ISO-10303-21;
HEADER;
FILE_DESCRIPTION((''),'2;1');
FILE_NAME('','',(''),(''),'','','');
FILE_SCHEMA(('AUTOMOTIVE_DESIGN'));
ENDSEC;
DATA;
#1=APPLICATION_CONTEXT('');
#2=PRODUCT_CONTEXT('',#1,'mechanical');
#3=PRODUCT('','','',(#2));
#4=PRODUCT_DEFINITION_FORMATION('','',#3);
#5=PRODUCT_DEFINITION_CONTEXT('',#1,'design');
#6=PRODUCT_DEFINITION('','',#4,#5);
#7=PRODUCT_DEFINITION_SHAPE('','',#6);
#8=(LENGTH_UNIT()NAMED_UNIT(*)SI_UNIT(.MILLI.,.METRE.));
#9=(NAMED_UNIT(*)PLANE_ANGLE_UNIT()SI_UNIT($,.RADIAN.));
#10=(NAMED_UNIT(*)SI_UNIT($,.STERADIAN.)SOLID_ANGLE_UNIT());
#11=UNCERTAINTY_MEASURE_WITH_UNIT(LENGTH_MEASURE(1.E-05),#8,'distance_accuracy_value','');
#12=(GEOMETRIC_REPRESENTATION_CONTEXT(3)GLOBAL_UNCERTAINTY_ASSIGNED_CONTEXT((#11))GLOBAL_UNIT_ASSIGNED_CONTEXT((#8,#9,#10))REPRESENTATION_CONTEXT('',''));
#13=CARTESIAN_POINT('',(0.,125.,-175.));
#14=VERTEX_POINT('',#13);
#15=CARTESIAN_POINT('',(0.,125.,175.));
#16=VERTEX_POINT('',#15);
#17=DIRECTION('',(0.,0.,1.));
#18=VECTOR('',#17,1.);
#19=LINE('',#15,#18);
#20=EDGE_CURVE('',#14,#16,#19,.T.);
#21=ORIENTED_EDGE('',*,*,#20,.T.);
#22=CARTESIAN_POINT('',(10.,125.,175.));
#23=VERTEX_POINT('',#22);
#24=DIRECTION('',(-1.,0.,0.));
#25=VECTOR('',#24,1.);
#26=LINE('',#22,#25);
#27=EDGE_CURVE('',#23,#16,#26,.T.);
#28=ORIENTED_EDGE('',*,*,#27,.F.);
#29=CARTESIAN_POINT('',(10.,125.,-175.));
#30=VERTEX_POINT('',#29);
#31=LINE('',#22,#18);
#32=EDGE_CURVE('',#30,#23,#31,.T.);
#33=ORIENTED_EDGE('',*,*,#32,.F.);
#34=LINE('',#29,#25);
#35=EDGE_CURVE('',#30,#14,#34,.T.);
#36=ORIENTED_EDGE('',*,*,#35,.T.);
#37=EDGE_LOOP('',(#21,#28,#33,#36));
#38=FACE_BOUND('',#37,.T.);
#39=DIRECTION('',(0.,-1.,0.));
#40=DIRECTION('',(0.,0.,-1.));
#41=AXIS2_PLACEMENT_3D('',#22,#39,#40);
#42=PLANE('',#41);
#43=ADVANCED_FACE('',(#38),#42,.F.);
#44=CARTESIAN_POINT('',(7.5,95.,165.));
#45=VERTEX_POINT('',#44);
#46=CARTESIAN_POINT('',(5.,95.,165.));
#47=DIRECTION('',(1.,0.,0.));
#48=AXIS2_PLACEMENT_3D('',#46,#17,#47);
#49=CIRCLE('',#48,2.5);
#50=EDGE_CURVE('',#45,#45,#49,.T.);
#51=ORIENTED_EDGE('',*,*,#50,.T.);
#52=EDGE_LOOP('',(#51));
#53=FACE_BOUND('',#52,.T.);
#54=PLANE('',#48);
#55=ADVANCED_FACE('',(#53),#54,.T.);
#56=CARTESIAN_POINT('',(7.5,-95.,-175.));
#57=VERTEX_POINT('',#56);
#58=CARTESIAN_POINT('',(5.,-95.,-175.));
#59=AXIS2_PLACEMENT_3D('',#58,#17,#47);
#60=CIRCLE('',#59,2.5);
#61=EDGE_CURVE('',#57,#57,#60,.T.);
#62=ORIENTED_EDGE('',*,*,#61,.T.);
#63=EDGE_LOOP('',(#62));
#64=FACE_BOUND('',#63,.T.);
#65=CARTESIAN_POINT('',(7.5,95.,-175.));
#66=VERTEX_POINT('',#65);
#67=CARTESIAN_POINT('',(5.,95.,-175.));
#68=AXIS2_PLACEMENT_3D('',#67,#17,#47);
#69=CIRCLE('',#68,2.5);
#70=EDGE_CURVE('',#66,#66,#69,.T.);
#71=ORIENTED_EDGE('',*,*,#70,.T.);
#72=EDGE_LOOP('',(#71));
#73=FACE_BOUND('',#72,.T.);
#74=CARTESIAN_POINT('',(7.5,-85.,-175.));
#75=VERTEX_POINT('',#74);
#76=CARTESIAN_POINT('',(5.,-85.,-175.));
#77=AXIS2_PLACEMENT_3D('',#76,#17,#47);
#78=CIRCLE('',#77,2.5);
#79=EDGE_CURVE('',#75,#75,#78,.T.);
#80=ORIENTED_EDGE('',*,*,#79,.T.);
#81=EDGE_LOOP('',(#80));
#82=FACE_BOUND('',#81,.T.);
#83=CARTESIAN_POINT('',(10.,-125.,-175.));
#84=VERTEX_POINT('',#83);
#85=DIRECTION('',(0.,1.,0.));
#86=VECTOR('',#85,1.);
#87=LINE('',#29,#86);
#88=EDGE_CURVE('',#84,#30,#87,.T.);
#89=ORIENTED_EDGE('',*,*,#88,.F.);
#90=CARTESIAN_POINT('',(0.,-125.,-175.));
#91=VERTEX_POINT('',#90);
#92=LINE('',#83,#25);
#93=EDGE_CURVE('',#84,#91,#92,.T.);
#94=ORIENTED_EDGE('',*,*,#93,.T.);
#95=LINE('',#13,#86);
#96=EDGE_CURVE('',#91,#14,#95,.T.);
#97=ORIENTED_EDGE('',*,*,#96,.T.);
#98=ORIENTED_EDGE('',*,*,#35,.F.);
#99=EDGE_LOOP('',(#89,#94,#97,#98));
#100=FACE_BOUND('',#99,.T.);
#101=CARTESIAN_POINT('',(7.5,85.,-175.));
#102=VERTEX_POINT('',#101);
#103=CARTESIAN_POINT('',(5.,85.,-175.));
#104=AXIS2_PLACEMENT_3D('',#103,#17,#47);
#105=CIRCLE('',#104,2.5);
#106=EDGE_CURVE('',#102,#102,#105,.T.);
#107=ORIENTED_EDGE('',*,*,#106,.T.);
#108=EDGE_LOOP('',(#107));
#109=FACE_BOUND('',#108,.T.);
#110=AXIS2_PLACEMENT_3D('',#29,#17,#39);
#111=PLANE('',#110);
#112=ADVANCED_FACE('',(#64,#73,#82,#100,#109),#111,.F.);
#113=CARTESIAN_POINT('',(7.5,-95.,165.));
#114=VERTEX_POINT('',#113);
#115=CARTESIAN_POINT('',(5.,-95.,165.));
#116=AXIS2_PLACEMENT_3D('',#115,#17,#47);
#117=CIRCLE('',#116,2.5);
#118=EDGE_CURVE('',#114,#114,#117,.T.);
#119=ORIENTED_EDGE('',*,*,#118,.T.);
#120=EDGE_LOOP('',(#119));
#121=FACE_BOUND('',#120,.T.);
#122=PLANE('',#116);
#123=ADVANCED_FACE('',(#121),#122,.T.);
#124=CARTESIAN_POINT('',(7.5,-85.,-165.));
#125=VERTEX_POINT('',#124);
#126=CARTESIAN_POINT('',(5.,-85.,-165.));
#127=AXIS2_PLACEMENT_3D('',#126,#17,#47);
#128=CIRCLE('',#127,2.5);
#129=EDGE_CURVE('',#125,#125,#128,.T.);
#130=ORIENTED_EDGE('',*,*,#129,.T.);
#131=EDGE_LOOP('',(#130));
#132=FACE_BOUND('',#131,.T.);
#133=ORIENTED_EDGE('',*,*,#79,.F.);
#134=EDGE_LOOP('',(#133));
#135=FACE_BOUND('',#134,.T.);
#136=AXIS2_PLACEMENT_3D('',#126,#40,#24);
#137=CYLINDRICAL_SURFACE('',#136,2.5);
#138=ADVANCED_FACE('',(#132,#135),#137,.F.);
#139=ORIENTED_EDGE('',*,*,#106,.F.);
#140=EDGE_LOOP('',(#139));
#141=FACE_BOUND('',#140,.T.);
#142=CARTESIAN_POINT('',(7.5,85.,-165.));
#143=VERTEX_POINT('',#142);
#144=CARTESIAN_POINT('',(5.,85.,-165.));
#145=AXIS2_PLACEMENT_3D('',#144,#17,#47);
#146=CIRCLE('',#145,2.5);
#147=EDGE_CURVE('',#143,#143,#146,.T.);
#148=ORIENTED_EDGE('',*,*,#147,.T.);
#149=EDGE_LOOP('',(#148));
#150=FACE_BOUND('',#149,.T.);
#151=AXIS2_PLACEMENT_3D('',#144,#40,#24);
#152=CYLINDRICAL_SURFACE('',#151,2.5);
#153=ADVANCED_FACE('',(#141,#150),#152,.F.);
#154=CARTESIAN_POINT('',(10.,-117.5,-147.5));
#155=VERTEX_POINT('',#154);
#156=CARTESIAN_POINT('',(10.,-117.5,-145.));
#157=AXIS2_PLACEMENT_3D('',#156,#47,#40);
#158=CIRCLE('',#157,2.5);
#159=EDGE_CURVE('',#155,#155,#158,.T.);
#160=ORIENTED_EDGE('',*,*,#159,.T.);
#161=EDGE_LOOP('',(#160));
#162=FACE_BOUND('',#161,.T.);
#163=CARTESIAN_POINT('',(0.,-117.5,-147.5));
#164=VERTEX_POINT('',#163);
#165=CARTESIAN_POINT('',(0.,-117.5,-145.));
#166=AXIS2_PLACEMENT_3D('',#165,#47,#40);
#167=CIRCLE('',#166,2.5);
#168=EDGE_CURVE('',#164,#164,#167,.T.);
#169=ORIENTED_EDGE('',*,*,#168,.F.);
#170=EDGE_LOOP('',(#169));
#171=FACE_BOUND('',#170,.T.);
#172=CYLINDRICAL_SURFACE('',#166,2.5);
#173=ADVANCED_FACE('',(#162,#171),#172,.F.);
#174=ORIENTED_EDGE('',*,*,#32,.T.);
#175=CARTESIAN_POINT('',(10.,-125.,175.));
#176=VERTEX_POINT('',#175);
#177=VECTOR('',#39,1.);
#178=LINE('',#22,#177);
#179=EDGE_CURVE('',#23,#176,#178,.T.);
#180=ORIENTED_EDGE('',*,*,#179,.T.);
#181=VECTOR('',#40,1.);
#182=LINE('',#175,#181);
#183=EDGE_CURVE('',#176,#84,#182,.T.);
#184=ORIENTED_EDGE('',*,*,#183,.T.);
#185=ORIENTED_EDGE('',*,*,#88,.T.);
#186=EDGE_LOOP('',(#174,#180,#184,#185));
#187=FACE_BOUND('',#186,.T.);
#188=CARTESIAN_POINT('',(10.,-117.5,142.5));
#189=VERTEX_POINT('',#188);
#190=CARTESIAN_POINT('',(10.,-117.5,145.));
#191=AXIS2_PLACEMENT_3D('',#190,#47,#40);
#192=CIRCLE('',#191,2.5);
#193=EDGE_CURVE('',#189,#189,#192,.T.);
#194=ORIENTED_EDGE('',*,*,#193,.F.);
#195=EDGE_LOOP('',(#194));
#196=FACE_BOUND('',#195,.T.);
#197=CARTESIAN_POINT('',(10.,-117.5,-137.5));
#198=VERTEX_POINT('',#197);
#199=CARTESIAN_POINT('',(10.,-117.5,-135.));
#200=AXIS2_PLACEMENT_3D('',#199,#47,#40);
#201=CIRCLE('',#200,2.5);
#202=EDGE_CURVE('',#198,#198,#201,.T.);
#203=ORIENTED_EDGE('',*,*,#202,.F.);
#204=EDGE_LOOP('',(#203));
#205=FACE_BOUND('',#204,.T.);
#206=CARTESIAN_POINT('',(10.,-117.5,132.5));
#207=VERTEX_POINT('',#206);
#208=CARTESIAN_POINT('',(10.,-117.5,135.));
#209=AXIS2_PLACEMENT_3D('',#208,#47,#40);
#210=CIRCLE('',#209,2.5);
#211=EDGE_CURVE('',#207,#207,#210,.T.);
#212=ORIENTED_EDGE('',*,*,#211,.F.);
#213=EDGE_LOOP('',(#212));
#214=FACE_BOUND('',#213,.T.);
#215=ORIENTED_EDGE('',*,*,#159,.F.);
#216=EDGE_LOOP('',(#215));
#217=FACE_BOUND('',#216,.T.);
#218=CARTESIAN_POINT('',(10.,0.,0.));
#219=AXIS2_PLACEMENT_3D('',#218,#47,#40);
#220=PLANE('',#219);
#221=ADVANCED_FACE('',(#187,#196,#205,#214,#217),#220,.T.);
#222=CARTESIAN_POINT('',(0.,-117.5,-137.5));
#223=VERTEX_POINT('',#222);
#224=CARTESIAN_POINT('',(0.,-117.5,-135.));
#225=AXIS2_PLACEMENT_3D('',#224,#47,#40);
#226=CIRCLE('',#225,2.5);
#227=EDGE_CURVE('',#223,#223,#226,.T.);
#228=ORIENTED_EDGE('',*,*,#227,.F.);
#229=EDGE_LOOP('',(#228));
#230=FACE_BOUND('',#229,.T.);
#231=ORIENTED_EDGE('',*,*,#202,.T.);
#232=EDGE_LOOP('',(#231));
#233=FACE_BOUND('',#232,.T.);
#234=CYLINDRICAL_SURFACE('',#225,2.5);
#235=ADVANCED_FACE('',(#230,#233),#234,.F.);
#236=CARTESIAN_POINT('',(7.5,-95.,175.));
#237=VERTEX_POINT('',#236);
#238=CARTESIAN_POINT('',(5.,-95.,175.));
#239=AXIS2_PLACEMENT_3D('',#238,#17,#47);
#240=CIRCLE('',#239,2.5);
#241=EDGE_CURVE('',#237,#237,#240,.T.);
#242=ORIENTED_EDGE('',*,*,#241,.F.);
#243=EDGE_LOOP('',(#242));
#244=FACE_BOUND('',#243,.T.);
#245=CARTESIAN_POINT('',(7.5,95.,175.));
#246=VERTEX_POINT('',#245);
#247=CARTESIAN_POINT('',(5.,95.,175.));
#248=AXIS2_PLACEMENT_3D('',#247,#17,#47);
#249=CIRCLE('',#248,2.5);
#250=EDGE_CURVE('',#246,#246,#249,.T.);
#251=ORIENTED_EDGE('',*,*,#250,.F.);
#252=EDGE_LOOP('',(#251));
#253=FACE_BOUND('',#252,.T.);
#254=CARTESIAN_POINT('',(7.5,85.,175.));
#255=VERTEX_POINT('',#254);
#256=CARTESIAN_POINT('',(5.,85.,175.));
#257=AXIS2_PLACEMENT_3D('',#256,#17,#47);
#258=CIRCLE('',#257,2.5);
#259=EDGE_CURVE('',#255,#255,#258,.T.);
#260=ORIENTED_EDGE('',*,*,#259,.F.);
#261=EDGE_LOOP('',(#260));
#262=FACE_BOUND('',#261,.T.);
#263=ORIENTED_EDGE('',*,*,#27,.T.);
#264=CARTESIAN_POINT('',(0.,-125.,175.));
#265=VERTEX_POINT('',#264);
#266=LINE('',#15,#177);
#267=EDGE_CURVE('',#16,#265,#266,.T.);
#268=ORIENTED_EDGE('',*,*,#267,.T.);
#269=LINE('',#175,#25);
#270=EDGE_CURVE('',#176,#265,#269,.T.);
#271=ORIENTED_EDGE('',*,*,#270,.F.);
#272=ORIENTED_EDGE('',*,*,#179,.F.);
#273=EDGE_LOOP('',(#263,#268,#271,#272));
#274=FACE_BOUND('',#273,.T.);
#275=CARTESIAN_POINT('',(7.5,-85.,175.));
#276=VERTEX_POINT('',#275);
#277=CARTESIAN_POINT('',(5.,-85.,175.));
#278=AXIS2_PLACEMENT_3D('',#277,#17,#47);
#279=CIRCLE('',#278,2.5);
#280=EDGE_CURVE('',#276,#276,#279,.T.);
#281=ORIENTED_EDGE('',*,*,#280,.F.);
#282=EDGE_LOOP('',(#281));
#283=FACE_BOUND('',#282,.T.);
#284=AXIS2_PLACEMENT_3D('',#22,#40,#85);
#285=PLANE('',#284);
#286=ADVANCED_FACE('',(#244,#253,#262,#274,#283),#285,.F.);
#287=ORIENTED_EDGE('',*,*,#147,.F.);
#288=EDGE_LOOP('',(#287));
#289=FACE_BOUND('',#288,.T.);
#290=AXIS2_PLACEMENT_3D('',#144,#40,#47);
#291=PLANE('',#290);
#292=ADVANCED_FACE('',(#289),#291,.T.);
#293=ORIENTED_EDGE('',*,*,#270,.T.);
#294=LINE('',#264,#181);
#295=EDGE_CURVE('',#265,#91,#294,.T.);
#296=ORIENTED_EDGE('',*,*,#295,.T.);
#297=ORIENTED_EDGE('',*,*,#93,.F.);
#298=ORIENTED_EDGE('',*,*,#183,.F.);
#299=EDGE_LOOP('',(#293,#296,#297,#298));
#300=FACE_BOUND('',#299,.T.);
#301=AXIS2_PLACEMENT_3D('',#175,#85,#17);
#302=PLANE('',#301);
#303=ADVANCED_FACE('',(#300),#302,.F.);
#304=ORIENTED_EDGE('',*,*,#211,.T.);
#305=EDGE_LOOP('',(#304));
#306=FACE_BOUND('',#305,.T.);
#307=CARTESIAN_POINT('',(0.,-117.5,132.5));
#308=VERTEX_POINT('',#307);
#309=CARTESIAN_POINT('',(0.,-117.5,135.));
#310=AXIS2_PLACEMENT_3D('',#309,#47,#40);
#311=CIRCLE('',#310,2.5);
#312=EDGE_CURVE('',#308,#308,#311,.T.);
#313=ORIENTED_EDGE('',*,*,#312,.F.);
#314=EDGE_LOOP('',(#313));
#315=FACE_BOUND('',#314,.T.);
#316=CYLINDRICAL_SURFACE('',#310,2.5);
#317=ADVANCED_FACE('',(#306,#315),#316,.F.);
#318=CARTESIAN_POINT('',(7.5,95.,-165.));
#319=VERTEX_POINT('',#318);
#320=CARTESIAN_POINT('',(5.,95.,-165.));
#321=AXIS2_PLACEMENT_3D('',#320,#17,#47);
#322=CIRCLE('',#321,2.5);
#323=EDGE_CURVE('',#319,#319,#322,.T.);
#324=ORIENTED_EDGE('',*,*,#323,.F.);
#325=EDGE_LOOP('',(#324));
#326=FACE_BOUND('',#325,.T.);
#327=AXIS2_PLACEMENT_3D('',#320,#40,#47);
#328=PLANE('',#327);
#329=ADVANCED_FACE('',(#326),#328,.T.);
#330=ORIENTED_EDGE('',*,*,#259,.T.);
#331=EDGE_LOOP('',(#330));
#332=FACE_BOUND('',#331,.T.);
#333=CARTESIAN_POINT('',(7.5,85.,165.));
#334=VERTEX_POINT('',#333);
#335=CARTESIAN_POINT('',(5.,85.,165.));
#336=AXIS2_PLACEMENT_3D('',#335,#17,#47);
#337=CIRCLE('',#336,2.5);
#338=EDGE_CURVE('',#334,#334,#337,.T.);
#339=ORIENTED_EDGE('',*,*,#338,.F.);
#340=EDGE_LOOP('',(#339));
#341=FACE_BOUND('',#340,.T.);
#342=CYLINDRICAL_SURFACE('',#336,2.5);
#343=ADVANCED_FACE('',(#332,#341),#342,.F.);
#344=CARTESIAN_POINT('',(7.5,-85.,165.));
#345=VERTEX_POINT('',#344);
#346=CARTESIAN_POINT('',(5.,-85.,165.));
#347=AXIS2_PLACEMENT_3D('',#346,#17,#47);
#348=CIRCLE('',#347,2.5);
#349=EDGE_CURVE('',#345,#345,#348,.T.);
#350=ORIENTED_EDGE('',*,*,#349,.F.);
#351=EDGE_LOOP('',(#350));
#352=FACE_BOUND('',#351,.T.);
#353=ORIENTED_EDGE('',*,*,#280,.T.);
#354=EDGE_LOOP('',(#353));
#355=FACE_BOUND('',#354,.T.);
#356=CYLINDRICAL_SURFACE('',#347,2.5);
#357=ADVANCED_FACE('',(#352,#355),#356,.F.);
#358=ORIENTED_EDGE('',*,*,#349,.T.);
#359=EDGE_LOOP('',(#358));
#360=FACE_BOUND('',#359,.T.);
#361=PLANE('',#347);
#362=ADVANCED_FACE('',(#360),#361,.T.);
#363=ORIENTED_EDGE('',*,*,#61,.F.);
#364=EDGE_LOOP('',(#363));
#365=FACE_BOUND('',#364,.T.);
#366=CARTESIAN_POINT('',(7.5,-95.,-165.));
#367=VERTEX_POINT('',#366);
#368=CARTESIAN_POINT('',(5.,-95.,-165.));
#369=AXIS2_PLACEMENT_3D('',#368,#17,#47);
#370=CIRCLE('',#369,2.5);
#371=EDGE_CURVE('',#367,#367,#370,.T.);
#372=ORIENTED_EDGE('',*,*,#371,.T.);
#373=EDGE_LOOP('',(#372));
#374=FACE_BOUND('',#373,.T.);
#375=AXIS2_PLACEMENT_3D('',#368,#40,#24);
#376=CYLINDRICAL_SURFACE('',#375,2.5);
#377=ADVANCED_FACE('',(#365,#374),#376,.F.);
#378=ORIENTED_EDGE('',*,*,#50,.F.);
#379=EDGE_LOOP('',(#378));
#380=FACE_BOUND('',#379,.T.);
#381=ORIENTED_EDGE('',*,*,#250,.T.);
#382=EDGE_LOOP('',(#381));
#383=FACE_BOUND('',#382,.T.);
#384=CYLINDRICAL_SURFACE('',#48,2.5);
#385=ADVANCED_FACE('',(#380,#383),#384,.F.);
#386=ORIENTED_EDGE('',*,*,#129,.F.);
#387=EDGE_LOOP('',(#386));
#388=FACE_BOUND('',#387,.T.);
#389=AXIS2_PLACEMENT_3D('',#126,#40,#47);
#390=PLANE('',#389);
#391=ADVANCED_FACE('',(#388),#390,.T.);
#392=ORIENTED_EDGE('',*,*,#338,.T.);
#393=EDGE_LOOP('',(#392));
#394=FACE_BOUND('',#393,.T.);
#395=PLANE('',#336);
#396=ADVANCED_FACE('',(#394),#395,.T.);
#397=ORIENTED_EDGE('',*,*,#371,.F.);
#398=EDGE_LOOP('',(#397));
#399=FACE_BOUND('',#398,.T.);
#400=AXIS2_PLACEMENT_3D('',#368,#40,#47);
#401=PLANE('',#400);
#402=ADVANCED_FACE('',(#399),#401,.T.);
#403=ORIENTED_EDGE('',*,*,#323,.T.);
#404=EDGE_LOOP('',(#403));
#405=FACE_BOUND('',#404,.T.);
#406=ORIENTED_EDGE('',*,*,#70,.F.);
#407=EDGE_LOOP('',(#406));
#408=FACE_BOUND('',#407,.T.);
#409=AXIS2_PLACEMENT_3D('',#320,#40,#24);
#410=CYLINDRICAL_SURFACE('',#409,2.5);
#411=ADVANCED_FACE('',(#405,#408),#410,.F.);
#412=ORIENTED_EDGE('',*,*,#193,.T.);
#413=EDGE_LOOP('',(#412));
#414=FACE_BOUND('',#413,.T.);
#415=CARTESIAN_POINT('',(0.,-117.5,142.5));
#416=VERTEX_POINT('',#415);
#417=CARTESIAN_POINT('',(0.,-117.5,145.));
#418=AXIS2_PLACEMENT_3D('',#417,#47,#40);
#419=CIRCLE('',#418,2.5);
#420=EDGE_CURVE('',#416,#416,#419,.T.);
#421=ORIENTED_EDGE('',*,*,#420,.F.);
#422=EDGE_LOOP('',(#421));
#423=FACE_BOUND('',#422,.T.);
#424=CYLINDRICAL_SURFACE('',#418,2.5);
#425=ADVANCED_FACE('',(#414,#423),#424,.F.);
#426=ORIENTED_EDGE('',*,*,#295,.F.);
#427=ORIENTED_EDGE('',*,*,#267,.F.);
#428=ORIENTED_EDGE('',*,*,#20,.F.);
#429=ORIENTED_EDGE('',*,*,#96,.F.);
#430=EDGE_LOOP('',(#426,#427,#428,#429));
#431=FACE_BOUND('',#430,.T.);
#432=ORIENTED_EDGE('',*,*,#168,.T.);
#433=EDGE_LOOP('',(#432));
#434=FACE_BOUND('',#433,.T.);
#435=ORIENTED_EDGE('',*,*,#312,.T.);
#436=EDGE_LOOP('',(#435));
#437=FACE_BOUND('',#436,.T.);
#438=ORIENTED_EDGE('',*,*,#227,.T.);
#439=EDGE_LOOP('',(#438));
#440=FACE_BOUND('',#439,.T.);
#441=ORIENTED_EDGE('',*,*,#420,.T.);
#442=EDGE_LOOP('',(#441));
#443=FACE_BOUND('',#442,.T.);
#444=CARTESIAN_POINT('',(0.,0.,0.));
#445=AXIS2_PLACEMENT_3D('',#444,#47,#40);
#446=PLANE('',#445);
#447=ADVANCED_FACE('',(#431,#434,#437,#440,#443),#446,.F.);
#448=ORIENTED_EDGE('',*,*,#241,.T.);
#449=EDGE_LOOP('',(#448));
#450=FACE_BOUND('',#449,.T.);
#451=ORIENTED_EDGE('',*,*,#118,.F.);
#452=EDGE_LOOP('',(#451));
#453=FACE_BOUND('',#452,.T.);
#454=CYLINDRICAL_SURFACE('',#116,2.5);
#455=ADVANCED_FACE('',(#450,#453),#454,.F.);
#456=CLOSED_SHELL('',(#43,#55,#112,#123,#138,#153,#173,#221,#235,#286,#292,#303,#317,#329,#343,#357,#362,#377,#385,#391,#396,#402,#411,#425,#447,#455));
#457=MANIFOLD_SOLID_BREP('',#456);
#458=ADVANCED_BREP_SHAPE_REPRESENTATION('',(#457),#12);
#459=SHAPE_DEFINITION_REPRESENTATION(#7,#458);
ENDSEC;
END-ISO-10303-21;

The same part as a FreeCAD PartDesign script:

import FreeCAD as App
import Part
import Sketcher

V = App.Vector

doc = App.newDocument("Part")
body = doc.addObject("PartDesign::Body", "Body")

sketch1 = body.newObject("Sketcher::SketchObject", "Sketch")
sketch1.AttachmentSupport = (doc.getObject("YZ_Plane"), [""])
sketch1.MapMode = "FlatFace"
sketch1.addGeometry([
    Part.LineSegment(V(125, 175, 0), V(-125, 175, 0)),
    Part.LineSegment(V(-125, 175, 0), V(-125, -175, 0)),
    Part.LineSegment(V(-125, -175, 0), V(125, -175, 0)),
    Part.LineSegment(V(125, -175, 0), V(125, 175, 0)),
], False)
sketch1.addConstraint([
    Sketcher.Constraint("Coincident", 0, 2, 1, 1),
    Sketcher.Constraint("Coincident", 1, 2, 2, 1),
    Sketcher.Constraint("Coincident", 2, 2, 3, 1),
    Sketcher.Constraint("Coincident", 3, 2, 0, 1),
    Sketcher.Constraint("Horizontal", 0),
    Sketcher.Constraint("Vertical", 1),
    Sketcher.Constraint("Horizontal", 2),
    Sketcher.Constraint("Vertical", 3),
    Sketcher.Constraint("Symmetric", 0, 2, 2, 2, -1, 1),
    Sketcher.Constraint("DistanceX", 0, 2, 0, 1, 250.0),
    Sketcher.Constraint("DistanceY", 1, 2, 1, 1, 350.0),
])
pad1 = body.newObject("PartDesign::Pad", "Pad")
pad1.Profile = sketch1
pad1.Length = 10

sketch2 = body.newObject("Sketcher::SketchObject", "Sketch001")
sketch2.AttachmentSupport = (doc.getObject("XY_Plane"), [""])
sketch2.MapMode = "FlatFace"
sketch2.AttachmentOffset = App.Placement(V(0, 0, 175), App.Rotation())
sketch2.addGeometry([
    Part.Circle(V(5, 95, 0), V(0, 0, 1), 2.5),
    Part.Circle(V(5, 85, 0), V(0, 0, 1), 2.5),
    Part.Circle(V(5, -85, 0), V(0, 0, 1), 2.5),
    Part.Circle(V(5, -95, 0), V(0, 0, 1), 2.5),
], False)
sketch2.addConstraint([
    Sketcher.Constraint("Equal", 0, 1),
    Sketcher.Constraint("Equal", 1, 2),
    Sketcher.Constraint("Equal", 2, 3),
    Sketcher.Constraint("Symmetric", 1, 3, 2, 3, -1),
    Sketcher.Constraint("Symmetric", 0, 3, 3, 3, -1),
    Sketcher.Constraint("Vertical", 0, 3, 1, 3),
    Sketcher.Constraint("Diameter", 0, 5.0),
    Sketcher.Constraint("DistanceX", -1, 1, 0, 3, 5.0),
    Sketcher.Constraint("DistanceY", -1, 1, 0, 3, 95.0),
    Sketcher.Constraint("DistanceY", -1, 1, 1, 3, 85.0),
])
pocket1 = body.newObject("PartDesign::Pocket", "Pocket")
pocket1.Profile = sketch2
pocket1.Length = 10
doc.recompute()

mirrored = body.newObject("PartDesign::Mirrored", "Mirrored")
mirrored.Originals = [pocket1]
mirrored.MirrorPlane = (doc.getObject("XY_Plane"), [""])
body.Tip = mirrored

sketch3 = body.newObject("Sketcher::SketchObject", "Sketch002")
sketch3.AttachmentSupport = (doc.getObject("YZ_Plane"), [""])
sketch3.MapMode = "FlatFace"
sketch3.AttachmentOffset = App.Placement(V(0, 0, 10), App.Rotation())
sketch3.addGeometry([
    Part.Circle(V(-117.5, 145, 0), V(0, 0, 1), 2.5),
    Part.Circle(V(-117.5, 135, 0), V(0, 0, 1), 2.5),
    Part.Circle(V(-117.5, -135, 0), V(0, 0, 1), 2.5),
    Part.Circle(V(-117.5, -145, 0), V(0, 0, 1), 2.5),
], False)
sketch3.addConstraint([
    Sketcher.Constraint("Equal", 0, 1),
    Sketcher.Constraint("Equal", 1, 2),
    Sketcher.Constraint("Equal", 2, 3),
    Sketcher.Constraint("Symmetric", 1, 3, 2, 3, -1),
    Sketcher.Constraint("Symmetric", 0, 3, 3, 3, -1),
    Sketcher.Constraint("Vertical", 0, 3, 1, 3),
    Sketcher.Constraint("Diameter", 0, 5.0),
    Sketcher.Constraint("DistanceY", -1, 1, 0, 3, 145.0),
    Sketcher.Constraint("DistanceY", -1, 1, 1, 3, 135.0),
    Sketcher.Constraint("DistanceX", 0, 3, -1, 1, 117.5),
])
pocket2 = body.newObject("PartDesign::Pocket", "Pocket001")
pocket2.Profile = sketch3
pocket2.Type = "ThroughAll"

doc.recompute()
